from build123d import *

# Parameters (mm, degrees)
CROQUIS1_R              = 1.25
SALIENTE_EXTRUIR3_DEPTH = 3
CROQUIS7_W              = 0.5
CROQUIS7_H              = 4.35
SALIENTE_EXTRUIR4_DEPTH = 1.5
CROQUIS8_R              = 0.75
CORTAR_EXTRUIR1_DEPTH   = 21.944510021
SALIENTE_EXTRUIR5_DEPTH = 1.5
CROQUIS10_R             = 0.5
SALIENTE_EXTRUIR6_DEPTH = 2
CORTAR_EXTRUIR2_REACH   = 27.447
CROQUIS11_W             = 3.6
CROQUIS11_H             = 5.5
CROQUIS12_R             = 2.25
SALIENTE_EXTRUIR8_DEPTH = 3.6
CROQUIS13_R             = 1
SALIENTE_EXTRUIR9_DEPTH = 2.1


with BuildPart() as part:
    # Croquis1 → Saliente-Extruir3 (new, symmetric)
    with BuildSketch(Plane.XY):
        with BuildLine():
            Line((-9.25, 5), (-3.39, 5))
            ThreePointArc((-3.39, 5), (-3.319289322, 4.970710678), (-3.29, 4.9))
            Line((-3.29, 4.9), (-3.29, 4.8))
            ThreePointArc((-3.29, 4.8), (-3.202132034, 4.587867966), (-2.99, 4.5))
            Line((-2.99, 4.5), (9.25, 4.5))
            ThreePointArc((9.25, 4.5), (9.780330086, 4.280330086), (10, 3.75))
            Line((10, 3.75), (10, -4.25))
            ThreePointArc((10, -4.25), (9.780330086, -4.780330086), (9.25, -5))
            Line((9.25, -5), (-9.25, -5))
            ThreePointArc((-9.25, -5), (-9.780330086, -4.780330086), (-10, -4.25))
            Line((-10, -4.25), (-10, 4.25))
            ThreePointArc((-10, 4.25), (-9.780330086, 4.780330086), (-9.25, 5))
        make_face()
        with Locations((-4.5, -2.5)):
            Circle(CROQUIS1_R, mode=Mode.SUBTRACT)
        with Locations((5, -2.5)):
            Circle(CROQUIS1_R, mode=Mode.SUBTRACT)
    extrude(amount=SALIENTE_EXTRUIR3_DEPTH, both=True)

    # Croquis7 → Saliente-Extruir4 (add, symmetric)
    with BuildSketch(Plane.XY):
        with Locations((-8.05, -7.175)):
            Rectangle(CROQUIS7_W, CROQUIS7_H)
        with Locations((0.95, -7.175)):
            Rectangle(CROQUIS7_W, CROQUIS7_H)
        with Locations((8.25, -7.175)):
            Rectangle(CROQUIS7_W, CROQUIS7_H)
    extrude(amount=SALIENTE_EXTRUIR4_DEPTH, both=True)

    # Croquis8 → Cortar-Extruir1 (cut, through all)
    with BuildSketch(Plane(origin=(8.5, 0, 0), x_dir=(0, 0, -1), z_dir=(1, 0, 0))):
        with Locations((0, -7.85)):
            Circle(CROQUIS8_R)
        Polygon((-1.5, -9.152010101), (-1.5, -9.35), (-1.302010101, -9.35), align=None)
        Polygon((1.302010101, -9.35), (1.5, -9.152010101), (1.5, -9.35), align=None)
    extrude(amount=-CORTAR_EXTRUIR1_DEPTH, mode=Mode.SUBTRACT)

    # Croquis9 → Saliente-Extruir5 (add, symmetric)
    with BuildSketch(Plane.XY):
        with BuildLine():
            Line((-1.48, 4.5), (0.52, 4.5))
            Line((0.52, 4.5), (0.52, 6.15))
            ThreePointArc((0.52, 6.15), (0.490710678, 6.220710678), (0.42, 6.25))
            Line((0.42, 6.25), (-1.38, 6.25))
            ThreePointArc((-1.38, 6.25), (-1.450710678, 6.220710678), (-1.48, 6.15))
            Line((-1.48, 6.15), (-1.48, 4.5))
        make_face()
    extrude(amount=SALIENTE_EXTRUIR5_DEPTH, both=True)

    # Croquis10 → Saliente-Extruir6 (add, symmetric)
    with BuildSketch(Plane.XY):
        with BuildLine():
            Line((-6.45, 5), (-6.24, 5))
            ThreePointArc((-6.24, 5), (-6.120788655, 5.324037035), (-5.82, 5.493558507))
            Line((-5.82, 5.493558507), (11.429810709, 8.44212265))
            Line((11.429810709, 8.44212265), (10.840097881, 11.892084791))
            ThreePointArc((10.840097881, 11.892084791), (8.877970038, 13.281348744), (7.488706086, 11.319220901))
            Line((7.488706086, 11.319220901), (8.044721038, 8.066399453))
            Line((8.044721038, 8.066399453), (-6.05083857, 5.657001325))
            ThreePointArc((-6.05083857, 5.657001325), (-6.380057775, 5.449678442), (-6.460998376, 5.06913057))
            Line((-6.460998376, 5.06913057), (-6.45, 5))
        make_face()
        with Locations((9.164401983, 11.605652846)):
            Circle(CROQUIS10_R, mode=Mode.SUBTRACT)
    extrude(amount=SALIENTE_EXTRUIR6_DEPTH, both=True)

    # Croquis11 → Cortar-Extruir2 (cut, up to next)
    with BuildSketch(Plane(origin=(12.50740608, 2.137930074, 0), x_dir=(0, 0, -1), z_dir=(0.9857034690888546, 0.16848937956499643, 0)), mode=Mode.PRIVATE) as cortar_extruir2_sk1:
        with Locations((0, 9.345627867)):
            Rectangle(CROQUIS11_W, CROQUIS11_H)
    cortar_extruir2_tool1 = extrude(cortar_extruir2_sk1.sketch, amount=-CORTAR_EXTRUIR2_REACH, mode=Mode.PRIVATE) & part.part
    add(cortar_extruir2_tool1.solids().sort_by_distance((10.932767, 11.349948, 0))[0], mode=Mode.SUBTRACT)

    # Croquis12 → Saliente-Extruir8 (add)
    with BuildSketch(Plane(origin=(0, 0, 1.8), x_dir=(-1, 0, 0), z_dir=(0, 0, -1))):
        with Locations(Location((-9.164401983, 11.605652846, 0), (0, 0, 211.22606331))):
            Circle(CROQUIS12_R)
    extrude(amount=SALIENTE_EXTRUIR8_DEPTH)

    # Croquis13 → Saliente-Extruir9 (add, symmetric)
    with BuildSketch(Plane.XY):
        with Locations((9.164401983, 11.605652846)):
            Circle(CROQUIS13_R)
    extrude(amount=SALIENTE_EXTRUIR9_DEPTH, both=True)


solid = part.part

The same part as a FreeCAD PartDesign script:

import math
import FreeCAD as App
import Part
import Sketcher

V = App.Vector
Q = App.Units.Quantity


def add_polygon(sketch, points):
    """Adds a closed chain of lines whose ends are joined by coincident constraints."""
    first, n = sketch.GeometryCount, len(points)
    for a, b in zip(points, points[1:] + points[:1]):
        sketch.addGeometry(Part.LineSegment(App.Vector(*a, 0), App.Vector(*b, 0)), False)
    for i in range(n):
        sketch.addConstraint(Sketcher.Constraint("Coincident", first + i, 2, first + (i + 1) % n, 1))

doc = App.newDocument("Part")
body = doc.addObject("PartDesign::Body", "Body")

# Sketch on XY plane
sketch1 = doc.addObject("Sketcher::SketchObject", "Sketch")
body.addObject(sketch1)
sketch1.AttachmentSupport = (doc.XY_Plane, [""])
sketch1.MapMode = "FlatFace"
sketch1.addGeometry(Part.LineSegment(V(-3.39, 5, 0), V(-9.25, 5, 0)), False)
sketch1.addGeometry(Part.ArcOfCircle(Part.Circle(V(-9.25, 4.25, 0), V(0, 0, 1), 0.75), math.radians(90), math.radians(180)), False)
sketch1.addGeometry(Part.LineSegment(V(-10, 4.25, 0), V(-10, -4.25, 0)), False)
sketch1.addGeometry(Part.ArcOfCircle(Part.Circle(V(-9.25, -4.25, 0), V(0, 0, 1), 0.75), math.radians(180), math.radians(270)), False)
sketch1.addGeometry(Part.LineSegment(V(-9.25, -5, 0), V(9.25, -5, 0)), False)
sketch1.addGeometry(Part.ArcOfCircle(Part.Circle(V(9.25, -4.25, 0), V(0, 0, 1), 0.75), math.radians(-90), math.radians(0)), False)
sketch1.addGeometry(Part.LineSegment(V(10, -4.25, 0), V(10, 3.75, 0)), False)
sketch1.addGeometry(Part.ArcOfCircle(Part.Circle(V(9.25, 3.75, 0), V(0, 0, 1), 0.75), math.radians(0), math.radians(90)), False)
sketch1.addGeometry(Part.LineSegment(V(9.25, 4.5, 0), V(-2.99, 4.5, 0)), False)
sketch1.addGeometry(Part.ArcOfCircle(Part.Circle(V(-2.99, 4.8, 0), V(0, 0, 1), 0.3), math.radians(-180), math.radians(-90)), False)
sketch1.addGeometry(Part.LineSegment(V(-3.29, 4.8, 0), V(-3.29, 4.9, 0)), False)
sketch1.addGeometry(Part.ArcOfCircle(Part.Circle(V(-3.39, 4.9, 0), V(0, 0, 1), 0.1), math.radians(0), math.radians(90)), False)
sketch1.addGeometry(Part.Circle(V(5, -2.5, 0), V(0, 0, 1), 1.25), False)
sketch1.addGeometry(Part.Circle(V(-4.5, -2.5, 0), V(0, 0, 1), 1.25), False)
sketch1.addConstraint(Sketcher.Constraint("Tangent", 0, 2, 1, 1))
sketch1.addConstraint(Sketcher.Constraint("Tangent", 1, 2, 2, 1))
sketch1.addConstraint(Sketcher.Constraint("Tangent", 2, 2, 3, 1))
sketch1.addConstraint(Sketcher.Constraint("Tangent", 3, 2, 4, 1))
sketch1.addConstraint(Sketcher.Constraint("Tangent", 4, 2, 5, 1))
sketch1.addConstraint(Sketcher.Constraint("Tangent", 5, 2, 6, 1))
sketch1.addConstraint(Sketcher.Constraint("Tangent", 6, 2, 7, 1))
sketch1.addConstraint(Sketcher.Constraint("Tangent", 7, 2, 8, 1))
sketch1.addConstraint(Sketcher.Constraint("Tangent", 8, 2, 9, 2))
sketch1.addConstraint(Sketcher.Constraint("Tangent", 9, 1, 10, 1))
sketch1.addConstraint(Sketcher.Constraint("Tangent", 10, 2, 11, 1))
sketch1.addConstraint(Sketcher.Constraint("Tangent", 11, 2, 0, 1))
sketch1.addConstraint(Sketcher.Constraint("Horizontal", 0))
sketch1.addConstraint(Sketcher.Constraint("Vertical", 2))
sketch1.addConstraint(Sketcher.Constraint("Horizontal", 4))
sketch1.addConstraint(Sketcher.Constraint("Vertical", 6))
sketch1.addConstraint(Sketcher.Constraint("Horizontal", 8))
sketch1.addConstraint(Sketcher.Constraint("Vertical", 10))
sketch1.addConstraint(Sketcher.Constraint("Equal", 1, 3))
sketch1.addConstraint(Sketcher.Constraint("Equal", 3, 5))
sketch1.addConstraint(Sketcher.Constraint("Equal", 5, 7))
sketch1.addConstraint(Sketcher.Constraint("Equal", 12, 13))
sketch1.addConstraint(Sketcher.Constraint("Symmetric", 1, 3, 5, 3, -1, 1))
sketch1.addConstraint(Sketcher.Constraint("Horizontal", 12, 3, 13, 3))
sketch1.addConstraint(Sketcher.Constraint("Diameter", 12, Q("2.5 mm")))
sketch1.addConstraint(Sketcher.Constraint("Radius", 9, Q("0.3 mm")))
sketch1.addConstraint(Sketcher.Constraint("Radius", 11, Q("0.1 mm")))
sketch1.addConstraint(Sketcher.Constraint("DistanceY", 6, 1, 6, 2, Q("8 mm")))
sketch1.addConstraint(Sketcher.Constraint("Radius", 1, Q("0.75 mm")))
sketch1.addConstraint(Sketcher.Constraint("DistanceX", 4, 1, 4, 2, Q("18.5 mm")))
sketch1.addConstraint(Sketcher.Constraint("DistanceY", 2, 2, 2, 1, Q("8.5 mm")))
sketch1.addConstraint(Sketcher.Constraint("DistanceX", -1, 1, 12, 3, Q("5 mm")))
sketch1.addConstraint(Sketcher.Constraint("DistanceY", 12, 3, 7, 2, Q("7 mm")))
sketch1.addConstraint(Sketcher.Constraint("DistanceX", 0, 2, 0, 1, Q("5.86 mm")))
sketch1.addConstraint(Sketcher.Constraint("DistanceX", 13, 3, -1, 1, Q("4.5 mm")))
pad1 = doc.addObject("PartDesign::Pad", "Pad")
body.addObject(pad1)
pad1.Profile = sketch1
pad1.Length = 6
pad1.Midplane = True

# Sketch on XY plane
sketch2 = doc.addObject("Sketcher::SketchObject", "Sketch001")
body.addObject(sketch2)
sketch2.AttachmentSupport = (doc.XY_Plane, [""])
sketch2.MapMode = "FlatFace"
add_polygon(sketch2, [(-8.3, -5), (-8.3, -9.35), (-7.8, -9.35), (-7.8, -5)])  # lines 0-3
add_polygon(sketch2, [(0.7, -5), (0.7, -9.35), (1.2, -9.35), (1.2, -5)])  # lines 4-7
add_polygon(sketch2, [(8, -5), (8, -9.35), (8.5, -9.35), (8.5, -5)])  # lines 8-11
sketch2.addConstraint(Sketcher.Constraint("Vertical", 0))
sketch2.addConstraint(Sketcher.Constraint("Horizontal", 1))
sketch2.addConstraint(Sketcher.Constraint("Vertical", 2))
sketch2.addConstraint(Sketcher.Constraint("Horizontal", 3))
sketch2.addConstraint(Sketcher.Constraint("Vertical", 4))
sketch2.addConstraint(Sketcher.Constraint("Horizontal", 5))
sketch2.addConstraint(Sketcher.Constraint("Vertical", 6))
sketch2.addConstraint(Sketcher.Constraint("Horizontal", 7))
sketch2.addConstraint(Sketcher.Constraint("Vertical", 8))
sketch2.addConstraint(Sketcher.Constraint("Horizontal", 9))
sketch2.addConstraint(Sketcher.Constraint("Vertical", 10))
sketch2.addConstraint(Sketcher.Constraint("Horizontal", 11))
sketch2.addConstraint(Sketcher.Constraint("Horizontal", 1, 2, 4, 2))
sketch2.addConstraint(Sketcher.Constraint("Horizontal", 3, 2, 6, 2))
sketch2.addConstraint(Sketcher.Constraint("Horizontal", 5, 2, 8, 2))
sketch2.addConstraint(Sketcher.Constraint("Horizontal", 7, 2, 10, 2))
sketch2.addConstraint(Sketcher.Constraint("Equal", 3, 5))
sketch2.addConstraint(Sketcher.Constraint("Equal", 7, 9))
sketch2.addConstraint(Sketcher.Constraint("DistanceX", 1, 1, 1, 2, Q("0.5 mm")))
sketch2.addConstraint(Sketcher.Constraint("DistanceY", 2, 2, -1, 1, Q("5 mm")))
sketch2.addConstraint(Sketcher.Constraint("DistanceX", -1, 1, 8, 2, Q("8 mm")))
sketch2.addConstraint(Sketcher.Constraint("DistanceX", 0, 2, 4, 2, Q("9 mm")))
sketch2.addConstraint(Sketcher.Constraint("DistanceY", 0, 2, 0, 1, Q("4.35 mm")))
sketch2.addConstraint(Sketcher.Constraint("DistanceX", 0, 2, -1, 1, Q("8.3 mm")))
pad2 = doc.addObject("PartDesign::Pad", "Pad001")
body.addObject(pad2)
pad2.Profile = sketch2
pad2.Length = 3
pad2.Midplane = True

# Sketch on YZ plane
sketch3 = doc.addObject("Sketcher::SketchObject", "Sketch002")
body.addObject(sketch3)
sketch3.AttachmentSupport = (doc.YZ_Plane, [""])
sketch3.MapMode = "FlatFace"
sketch3.AttachmentOffset = App.Placement(V(0, 0, 8.5), App.Rotation())
sketch3.addGeometry(Part.Circle(V(-7.85, 0, 0), V(0, 0, 1), 0.75), False)  # 0
add_polygon(sketch3, [(-9.15201, 1.5), (-9.35, 1.5), (-9.35, 1.30201)])  # lines 1-3
add_polygon(sketch3, [(-9.15201, -1.5), (-9.35, -1.30201), (-9.35, -1.5)])  # lines 4-6
sketch3.addConstraint(Sketcher.Constraint("Horizontal", 1))
sketch3.addConstraint(Sketcher.Constraint("Vertical", 2))
sketch3.addConstraint(Sketcher.Constraint("Vertical", 5))
sketch3.addConstraint(Sketcher.Constraint("Horizontal", 6))
sketch3.addConstraint(Sketcher.Constraint("Symmetric", 2, 2, 4, 2, -1))
sketch3.addConstraint(Sketcher.Constraint("Symmetric", 3, 2, 6, 2, -1))
sketch3.addConstraint(Sketcher.Constraint("PointOnObject", 0, 3, -1))
sketch3.addConstraint(Sketcher.Constraint("Perpendicular", 3, 4))
sketch3.addConstraint(Sketcher.Constraint("Diameter", 0, Q("1.5 mm")))
sketch3.addConstraint(Sketcher.Constraint("DistanceY", 5, 2, 1, 2, Q("3 mm")))
sketch3.addConstraint(Sketcher.Constraint("DistanceX", 1, 2, 0, 3, Q("1.5 mm")))
sketch3.addConstraint(Sketcher.Constraint("Distance", 3, Q("0.28 mm")))
sketch3.addConstraint(Sketcher.Constraint("DistanceX", 0, 3, -1, 1, Q("7.85 mm")))
pocket1 = doc.addObject("PartDesign::Pocket", "Pocket")
body.addObject(pocket1)
pocket1.Profile = sketch3
pocket1.Type = "ThroughAll"

# Sketch on XY plane
sketch4 = doc.addObject("Sketcher::SketchObject", "Sketch003")
body.addObject(sketch4)
sketch4.AttachmentSupport = (doc.XY_Plane, [""])
sketch4.MapMode = "FlatFace"
sketch4.addGeometry(Part.LineSegment(V(-1.48, 4.5, 0), V(0.52, 4.5, 0)), False)
sketch4.addGeometry(Part.LineSegment(V(0.52, 4.5, 0), V(0.52, 6.15, 0)), False)
sketch4.addGeometry(Part.ArcOfCircle(Part.Circle(V(0.42, 6.15, 0), V(0, 0, 1), 0.1), math.radians(0), math.radians(90)), False)
sketch4.addGeometry(Part.LineSegment(V(0.42, 6.25, 0), V(-1.38, 6.25, 0)), False)
sketch4.addGeometry(Part.ArcOfCircle(Part.Circle(V(-1.38, 6.15, 0), V(0, 0, 1), 0.1), math.radians(90), math.radians(180)), False)
sketch4.addGeometry(Part.LineSegment(V(-1.48, 6.15, 0), V(-1.48, 4.5, 0)), False)
sketch4.addConstraint(Sketcher.Constraint("Coincident", 0, 2, 1, 1))
sketch4.addConstraint(Sketcher.Constraint("Tangent", 1, 2, 2, 1))
sketch4.addConstraint(Sketcher.Constraint("Tangent", 2, 2, 3, 1))
sketch4.addConstraint(Sketcher.Constraint("Tangent", 3, 2, 4, 1))
sketch4.addConstraint(Sketcher.Constraint("Tangent", 4, 2, 5, 1))
sketch4.addConstraint(Sketcher.Constraint("Coincident", 5, 2, 0, 1))
sketch4.addConstraint(Sketcher.Constraint("Horizontal", 0))
sketch4.addConstraint(Sketcher.Constraint("Vertical", 1))
sketch4.addConstraint(Sketcher.Constraint("Horizontal", 3))
sketch4.addConstraint(Sketcher.Constraint("Vertical", 5))
sketch4.addConstraint(Sketcher.Constraint("Equal", 2, 4))
sketch4.addConstraint(Sketcher.Constraint("Radius", 2, Q("0.1 mm")))
sketch4.addConstraint(Sketcher.Constraint("DistanceX", 0, 1, 0, 2, Q("2 mm")))
sketch4.addConstraint(Sketcher.Constraint("DistanceY", 1, 1, 1, 2, Q("1.65 mm")))
sketch4.addConstraint(Sketcher.Constraint("DistanceY", -1, 1, 0, 2, Q("4.5 mm")))
sketch4.addConstraint(Sketcher.Constraint("DistanceX", -1, 1, 2, 3, Q("0.42 mm")))
pad3 = doc.addObject("PartDesign::Pad", "Pad002")
body.addObject(pad3)
pad3.Profile = sketch4
pad3.Length = 3
pad3.Midplane = True

# Sketch on XY plane
sketch5 = doc.addObject("Sketcher::SketchObject", "Sketch004")
body.addObject(sketch5)
sketch5.AttachmentSupport = (doc.XY_Plane, [""])
sketch5.MapMode = "FlatFace"
sketch5.addGeometry(Part.LineSegment(V(-6.45, 5, 0), V(-6.24, 5, 0)), False)
sketch5.addGeometry(Part.ArcOfCircle(Part.Circle(V(-5.74, 5, 0), V(0, 0, 1), 0.5), math.radians(99.206896), math.radians(180)), False)
sketch5.addGeometry(Part.LineSegment(V(-5.82, 5.493559, 0), V(11.429811, 8.442123, 0)), False)
sketch5.addGeometry(Part.LineSegment(V(11.429811, 8.442123, 0), V(10.840098, 11.892085, 0)), False)
sketch5.addGeometry(Part.ArcOfCircle(Part.Circle(V(9.164402, 11.605653, 0), V(0, 0, 1), 1.7), math.radians(9.7), math.radians(189.7)), False)
sketch5.addGeometry(Part.LineSegment(V(7.488706, 11.319221, 0), V(8.044721, 8.066399, 0)), False)
sketch5.addGeometry(Part.LineSegment(V(8.044721, 8.066399, 0), V(-6.050839, 5.657001, 0)), False)
sketch5.addGeometry(Part.ArcOfCircle(Part.Circle(V(-5.97, 5.163579, 0), V(0, 0, 1), 0.5), math.radians(99.304257), math.radians(190.888468)), False)
sketch5.addGeometry(Part.LineSegment(V(-6.460998, 5.069131, 0), V(-6.45, 5, 0)), False)
sketch5.addGeometry(Part.Circle(V(9.164402, 11.605653, 0), V(0, 0, 1), 0.5), False)
sketch5.addConstraint(Sketcher.Constraint("Coincident", 0, 2, 1, 2))
sketch5.addConstraint(Sketcher.Constraint("Coincident", 1, 1, 2, 1))
sketch5.addConstraint(Sketcher.Constraint("Coincident", 2, 2, 3, 1))
sketch5.addConstraint(Sketcher.Constraint("Tangent", 3, 2, 4, 1))
sketch5.addConstraint(Sketcher.Constraint("Tangent", 4, 2, 5, 1))
sketch5.addConstraint(Sketcher.Constraint("Coincident", 5, 2, 6, 1))
sketch5.addConstraint(Sketcher.Constraint("Coincident", 6, 2, 7, 1))
sketch5.addConstraint(Sketcher.Constraint("Coincident", 7, 2, 8, 1))
sketch5.addConstraint(Sketcher.Constraint("Coincident", 8, 2, 0, 1))
sketch5.addConstraint(Sketcher.Constraint("Horizontal", 0))
sketch5.addConstraint(Sketcher.Constraint("Coincident", 9, 3, 4, 3))
sketch5.addConstraint(Sketcher.Constraint("Equal", 1, 7))
sketch5.addConstraint(Sketcher.Constraint("Equal", 7, 9))
sketch5.addConstraint(Sketcher.Constraint("Perpendicular", 2, 3))
sketch5.addConstraint(Sketcher.Constraint("Parallel", 3, 5))
sketch5.addConstraint(Sketcher.Constraint("Perpendicular", 5, 6))
sketch5.addConstraint(Sketcher.Constraint("Horizontal", 1, 3, 0, 2))
sketch5.addConstraint(Sketcher.Constraint("Diameter", 9, Q("1 mm")))
sketch5.addConstraint(Sketcher.Constraint("Radius", 4, Q("1.7 mm")))
sketch5.addConstraint(Sketcher.Constraint("DistanceY", -1, 1, 1, 3, Q("5 mm")))
sketch5.addConstraint(Sketcher.Constraint("Angle", 2, Q("9.7 deg")))
sketch5.addConstraint(Sketcher.Constraint("Distance", 2, Q("17.5 mm")))
sketch5.addConstraint(Sketcher.Constraint("Distance", 3, Q("3.5 mm")))
sketch5.addConstraint(Sketcher.Constraint("Distance", 5, Q("3.3 mm")))
sketch5.addConstraint(Sketcher.Constraint("Distance", 6, Q("14.3 mm")))
sketch5.addConstraint(Sketcher.Constraint("DistanceX", 0, 1, 0, 2, Q("0.21 mm")))
sketch5.addConstraint(Sketcher.Constraint("Distance", 8, Q("0.07 mm")))
sketch5.addConstraint(Sketcher.Constraint("DistanceX", 1, 3, -1, 1, Q("5.74 mm")))
sketch5.addConstraint(Sketcher.Constraint("DistanceX", 7, 3, -1, 1, Q("5.97 mm")))
sketch5.addConstraint(Sketcher.Constraint("DistanceX", 1, 1, -1, 1, Q("5.82 mm")))
pad4 = doc.addObject("PartDesign::Pad", "Pad003")
body.addObject(pad4)
pad4.Profile = sketch5
pad4.Length = 4
pad4.Midplane = True

# Sketch on an angled plane
sketch6 = doc.addObject("Sketcher::SketchObject", "Sketch005")
body.addObject(sketch6)
sketch6.Placement = App.Placement(V(12.507406, 2.13793, 0), App.Rotation(V(0, 0, -1), V(-0.16848938, 0.985703469, 0), V(0.985703469, 0.16848938, 0), "ZXY"))
add_polygon(sketch6, [(-1.8, 12.095628), (-1.8, 6.595628), (1.8, 6.595628), (1.8, 12.095628)])  # lines 0-3
sketch6.addConstraint(Sketcher.Constraint("Vertical", 0))
sketch6.addConstraint(Sketcher.Constraint("Horizontal", 1))
sketch6.addConstraint(Sketcher.Constraint("Vertical", 2))
sketch6.addConstraint(Sketcher.Constraint("Horizontal", 3))
sketch6.addConstraint(Sketcher.Constraint("DistanceX", 1, 1, 1, 2, Q("3.6 mm")))
sketch6.addConstraint(Sketcher.Constraint("DistanceY", 0, 2, 0, 1, Q("5.5 mm")))
sketch6.addConstraint(Sketcher.Constraint("DistanceX", 0, 2, -1, 1, Q("1.8 mm")))
sketch6.addConstraint(Sketcher.Constraint("DistanceY", -1, 1, 0, 2, Q("6.595628 mm")))
pocket2 = doc.addObject("PartDesign::Pocket", "Pocket001")
body.addObject(pocket2)
pocket2.Profile = sketch6
pocket2.Type = "UpToFirst"

# Sketch on XY plane
sketch7 = doc.addObject("Sketcher::SketchObject", "Sketch006")
body.addObject(sketch7)
sketch7.AttachmentSupport = (doc.XY_Plane, [""])
sketch7.MapMode = "FlatFace"
sketch7.AttachmentOffset = App.Placement(V(0, 0, 1.8), App.Rotation())
sketch7.addGeometry(Part.Circle(V(9.164402, 11.605653, 0), V(0, 0, 1), 2.25), False)
sketch7.addConstraint(Sketcher.Constraint("Diameter", 0, Q("4.5 mm")))
sketch7.addConstraint(Sketcher.Constraint("DistanceX", -1, 1, 0, 3, Q("9.164402 mm")))
sketch7.addConstraint(Sketcher.Constraint("DistanceY", -1, 1, 0, 3, Q("11.605653 mm")))
pad5 = doc.addObject("PartDesign::Pad", "Pad004")
body.addObject(pad5)
pad5.Profile = sketch7
pad5.Length = 3.6
pad5.Reversed = True

# Sketch on XY plane
sketch8 = doc.addObject("Sketcher::SketchObject", "Sketch007")
body.addObject(sketch8)
sketch8.AttachmentSupport = (doc.XY_Plane, [""])
sketch8.MapMode = "FlatFace"
sketch8.addGeometry(Part.Circle(V(9.164402, 11.605653, 0), V(0, 0, 1), 1), False)
sketch8.addConstraint(Sketcher.Constraint("Diameter", 0, Q("2 mm")))
sketch8.addConstraint(Sketcher.Constraint("DistanceX", -1, 1, 0, 3, Q("9.164402 mm")))
sketch8.addConstraint(Sketcher.Constraint("DistanceY", -1, 1, 0, 3, Q("11.605653 mm")))
pad6 = doc.addObject("PartDesign::Pad", "Pad005")
body.addObject(pad6)
pad6.Profile = sketch8
pad6.Length = 4.2
pad6.Midplane = True

doc.recompute()
